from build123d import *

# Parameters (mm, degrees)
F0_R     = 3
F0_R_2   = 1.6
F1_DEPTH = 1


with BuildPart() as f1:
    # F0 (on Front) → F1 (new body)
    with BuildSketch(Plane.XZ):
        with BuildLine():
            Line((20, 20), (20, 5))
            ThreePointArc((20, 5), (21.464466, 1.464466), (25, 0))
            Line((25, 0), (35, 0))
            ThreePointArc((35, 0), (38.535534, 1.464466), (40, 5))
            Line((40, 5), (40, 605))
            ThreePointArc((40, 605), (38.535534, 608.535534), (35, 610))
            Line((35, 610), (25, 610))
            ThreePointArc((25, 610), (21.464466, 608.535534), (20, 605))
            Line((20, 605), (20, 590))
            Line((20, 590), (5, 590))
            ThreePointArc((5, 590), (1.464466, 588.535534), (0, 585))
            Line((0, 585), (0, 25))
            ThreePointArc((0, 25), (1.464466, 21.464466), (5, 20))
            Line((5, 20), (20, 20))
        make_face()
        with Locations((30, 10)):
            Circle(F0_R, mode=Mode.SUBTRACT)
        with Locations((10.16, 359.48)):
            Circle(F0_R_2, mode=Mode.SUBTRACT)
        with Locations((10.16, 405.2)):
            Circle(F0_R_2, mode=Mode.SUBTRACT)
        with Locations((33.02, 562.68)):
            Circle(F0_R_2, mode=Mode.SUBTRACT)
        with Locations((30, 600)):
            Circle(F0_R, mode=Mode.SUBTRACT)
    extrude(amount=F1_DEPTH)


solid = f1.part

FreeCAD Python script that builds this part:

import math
import FreeCAD as App
import Part
import Sketcher
Q = App.Units.Quantity

doc = App.newDocument("Part")
body = doc.addObject("PartDesign::Body", "Body")

# Sketch on XZ plane
sketch1 = body.newObject("Sketcher::SketchObject", "Sketch")
sketch1.AttachmentSupport = (doc.getObject("XZ_Plane"), [""])
sketch1.MapMode = "FlatFace"
sketch1.addGeometry([
    Part.LineSegment(App.Vector(20, 20, 0), App.Vector(20, 5, 0)),  # 0
    Part.ArcOfCircle(Part.Circle(App.Vector(25, 5, 0), App.Vector(0, 0, 1), 5), math.radians(180), math.radians(270)),  # 1
    Part.LineSegment(App.Vector(25, 0, 0), App.Vector(35, 0, 0)),  # 2
    Part.ArcOfCircle(Part.Circle(App.Vector(35, 5, 0), App.Vector(0, 0, 1), 5), math.radians(-90), math.radians(0)),  # 3
    Part.LineSegment(App.Vector(40, 5, 0), App.Vector(40, 605, 0)),  # 4
    Part.ArcOfCircle(Part.Circle(App.Vector(35, 605, 0), App.Vector(0, 0, 1), 5), math.radians(0), math.radians(90)),  # 5
    Part.LineSegment(App.Vector(35, 610, 0), App.Vector(25, 610, 0)),  # 6
    Part.ArcOfCircle(Part.Circle(App.Vector(25, 605, 0), App.Vector(0, 0, 1), 5), math.radians(90), math.radians(180)),  # 7
    Part.LineSegment(App.Vector(20, 605, 0), App.Vector(20, 590, 0)),  # 8
    Part.LineSegment(App.Vector(20, 590, 0), App.Vector(5, 590, 0)),  # 9
    Part.ArcOfCircle(Part.Circle(App.Vector(5, 585, 0), App.Vector(0, 0, 1), 5), math.radians(90), math.radians(180)),  # 10
    Part.LineSegment(App.Vector(0, 585, 0), App.Vector(0, 25, 0)),  # 11
    Part.ArcOfCircle(Part.Circle(App.Vector(5, 25, 0), App.Vector(0, 0, 1), 5), math.radians(180), math.radians(270)),  # 12
    Part.LineSegment(App.Vector(5, 20, 0), App.Vector(20, 20, 0)),  # 13
    Part.Circle(App.Vector(30, 10, 0), App.Vector(0, 0, 1), 3),  # 14
    Part.Circle(App.Vector(10.2, 359.5, 0), App.Vector(0, 0, 1), 1.6),  # 15
    Part.Circle(App.Vector(10.2, 405.2, 0), App.Vector(0, 0, 1), 1.6),  # 16
    Part.Circle(App.Vector(30, 600, 0), App.Vector(0, 0, 1), 3),  # 17
    Part.Circle(App.Vector(33, 562.7, 0), App.Vector(0, 0, 1), 1.6),  # 18
], False)
sketch1.addConstraint([
    Sketcher.Constraint("Tangent", 0, 2, 1, 1),
    Sketcher.Constraint("Tangent", 1, 2, 2, 1),
    Sketcher.Constraint("Tangent", 2, 2, 3, 1),
    Sketcher.Constraint("Tangent", 3, 2, 4, 1),
    Sketcher.Constraint("Tangent", 4, 2, 5, 1),
    Sketcher.Constraint("Tangent", 5, 2, 6, 1),
    Sketcher.Constraint("Tangent", 6, 2, 7, 1),
    Sketcher.Constraint("Tangent", 7, 2, 8, 1),
    Sketcher.Constraint("Coincident", 8, 2, 9, 1),
    Sketcher.Constraint("Tangent", 9, 2, 10, 1),
    Sketcher.Constraint("Tangent", 10, 2, 11, 1),
    Sketcher.Constraint("Tangent", 11, 2, 12, 1),
    Sketcher.Constraint("Tangent", 12, 2, 13, 1),
    Sketcher.Constraint("Coincident", 13, 2, 0, 1),
    Sketcher.Constraint("Vertical", 0),
    Sketcher.Constraint("Horizontal", 2),
    Sketcher.Constraint("Vertical", 4),
    Sketcher.Constraint("Horizontal", 6),
    Sketcher.Constraint("Vertical", 8),
    Sketcher.Constraint("Horizontal", 9),
    Sketcher.Constraint("Vertical", 11),
    Sketcher.Constraint("Horizontal", 13),
    Sketcher.Constraint("Equal", 1, 3),
    Sketcher.Constraint("Equal", 3, 5),
    Sketcher.Constraint("Equal", 5, 7),
    Sketcher.Constraint("Equal", 7, 10),
    Sketcher.Constraint("Equal", 10, 12),
    Sketcher.Constraint("Equal", 15, 16),
    Sketcher.Constraint("Equal", 14, 17),
    Sketcher.Constraint("Equal", 16, 18),
    Sketcher.Constraint("PointOnObject", 1, 2, -1),
    Sketcher.Constraint("PointOnObject", 10, 2, -2),
    Sketcher.Constraint("Vertical", 1, 3, 7, 3),
    Sketcher.Constraint("Vertical", 15, 3, 16, 3),
    Sketcher.Constraint("Vertical", 14, 3, 17, 3),
    Sketcher.Constraint("Equal", 13, 0),
    Sketcher.Constraint("Equal", 0, 8),
    Sketcher.Constraint("Diameter", 14, Q("6 mm")),
    Sketcher.Constraint("Radius", 1, Q("5 mm")),
    Sketcher.Constraint("Diameter", 15, Q("3.2 mm")),
    Sketcher.Constraint("DistanceX", 2, 1, 2, 2, Q("10 mm")),
    Sketcher.Constraint("DistanceX", 9, 2, 9, 1, Q("15 mm")),
    Sketcher.Constraint("DistanceY", 4, 1, 4, 2, Q("600 mm")),
    Sketcher.Constraint("DistanceX", -1, 1, 14, 3, Q("30 mm")),
    Sketcher.Constraint("DistanceY", -1, 1, 14, 3, Q("10 mm")),
    Sketcher.Constraint("DistanceY", -1, 1, 17, 3, Q("600 mm")),
    Sketcher.Constraint("DistanceY", -1, 1, 16, 3, Q("405.2 mm")),
    Sketcher.Constraint("DistanceX", -1, 1, 15, 3, Q("10.16 mm")),
    Sketcher.Constraint("DistanceY", -1, 1, 15, 3, Q("359.48 mm")),
    Sketcher.Constraint("DistanceX", -1, 1, 18, 3, Q("33.02 mm")),
    Sketcher.Constraint("DistanceY", -1, 1, 18, 3, Q("562.68 mm")),
])
pad1 = body.newObject("PartDesign::Pad", "Pad")
pad1.Profile = sketch1
pad1.Length = 1

doc.recompute()
